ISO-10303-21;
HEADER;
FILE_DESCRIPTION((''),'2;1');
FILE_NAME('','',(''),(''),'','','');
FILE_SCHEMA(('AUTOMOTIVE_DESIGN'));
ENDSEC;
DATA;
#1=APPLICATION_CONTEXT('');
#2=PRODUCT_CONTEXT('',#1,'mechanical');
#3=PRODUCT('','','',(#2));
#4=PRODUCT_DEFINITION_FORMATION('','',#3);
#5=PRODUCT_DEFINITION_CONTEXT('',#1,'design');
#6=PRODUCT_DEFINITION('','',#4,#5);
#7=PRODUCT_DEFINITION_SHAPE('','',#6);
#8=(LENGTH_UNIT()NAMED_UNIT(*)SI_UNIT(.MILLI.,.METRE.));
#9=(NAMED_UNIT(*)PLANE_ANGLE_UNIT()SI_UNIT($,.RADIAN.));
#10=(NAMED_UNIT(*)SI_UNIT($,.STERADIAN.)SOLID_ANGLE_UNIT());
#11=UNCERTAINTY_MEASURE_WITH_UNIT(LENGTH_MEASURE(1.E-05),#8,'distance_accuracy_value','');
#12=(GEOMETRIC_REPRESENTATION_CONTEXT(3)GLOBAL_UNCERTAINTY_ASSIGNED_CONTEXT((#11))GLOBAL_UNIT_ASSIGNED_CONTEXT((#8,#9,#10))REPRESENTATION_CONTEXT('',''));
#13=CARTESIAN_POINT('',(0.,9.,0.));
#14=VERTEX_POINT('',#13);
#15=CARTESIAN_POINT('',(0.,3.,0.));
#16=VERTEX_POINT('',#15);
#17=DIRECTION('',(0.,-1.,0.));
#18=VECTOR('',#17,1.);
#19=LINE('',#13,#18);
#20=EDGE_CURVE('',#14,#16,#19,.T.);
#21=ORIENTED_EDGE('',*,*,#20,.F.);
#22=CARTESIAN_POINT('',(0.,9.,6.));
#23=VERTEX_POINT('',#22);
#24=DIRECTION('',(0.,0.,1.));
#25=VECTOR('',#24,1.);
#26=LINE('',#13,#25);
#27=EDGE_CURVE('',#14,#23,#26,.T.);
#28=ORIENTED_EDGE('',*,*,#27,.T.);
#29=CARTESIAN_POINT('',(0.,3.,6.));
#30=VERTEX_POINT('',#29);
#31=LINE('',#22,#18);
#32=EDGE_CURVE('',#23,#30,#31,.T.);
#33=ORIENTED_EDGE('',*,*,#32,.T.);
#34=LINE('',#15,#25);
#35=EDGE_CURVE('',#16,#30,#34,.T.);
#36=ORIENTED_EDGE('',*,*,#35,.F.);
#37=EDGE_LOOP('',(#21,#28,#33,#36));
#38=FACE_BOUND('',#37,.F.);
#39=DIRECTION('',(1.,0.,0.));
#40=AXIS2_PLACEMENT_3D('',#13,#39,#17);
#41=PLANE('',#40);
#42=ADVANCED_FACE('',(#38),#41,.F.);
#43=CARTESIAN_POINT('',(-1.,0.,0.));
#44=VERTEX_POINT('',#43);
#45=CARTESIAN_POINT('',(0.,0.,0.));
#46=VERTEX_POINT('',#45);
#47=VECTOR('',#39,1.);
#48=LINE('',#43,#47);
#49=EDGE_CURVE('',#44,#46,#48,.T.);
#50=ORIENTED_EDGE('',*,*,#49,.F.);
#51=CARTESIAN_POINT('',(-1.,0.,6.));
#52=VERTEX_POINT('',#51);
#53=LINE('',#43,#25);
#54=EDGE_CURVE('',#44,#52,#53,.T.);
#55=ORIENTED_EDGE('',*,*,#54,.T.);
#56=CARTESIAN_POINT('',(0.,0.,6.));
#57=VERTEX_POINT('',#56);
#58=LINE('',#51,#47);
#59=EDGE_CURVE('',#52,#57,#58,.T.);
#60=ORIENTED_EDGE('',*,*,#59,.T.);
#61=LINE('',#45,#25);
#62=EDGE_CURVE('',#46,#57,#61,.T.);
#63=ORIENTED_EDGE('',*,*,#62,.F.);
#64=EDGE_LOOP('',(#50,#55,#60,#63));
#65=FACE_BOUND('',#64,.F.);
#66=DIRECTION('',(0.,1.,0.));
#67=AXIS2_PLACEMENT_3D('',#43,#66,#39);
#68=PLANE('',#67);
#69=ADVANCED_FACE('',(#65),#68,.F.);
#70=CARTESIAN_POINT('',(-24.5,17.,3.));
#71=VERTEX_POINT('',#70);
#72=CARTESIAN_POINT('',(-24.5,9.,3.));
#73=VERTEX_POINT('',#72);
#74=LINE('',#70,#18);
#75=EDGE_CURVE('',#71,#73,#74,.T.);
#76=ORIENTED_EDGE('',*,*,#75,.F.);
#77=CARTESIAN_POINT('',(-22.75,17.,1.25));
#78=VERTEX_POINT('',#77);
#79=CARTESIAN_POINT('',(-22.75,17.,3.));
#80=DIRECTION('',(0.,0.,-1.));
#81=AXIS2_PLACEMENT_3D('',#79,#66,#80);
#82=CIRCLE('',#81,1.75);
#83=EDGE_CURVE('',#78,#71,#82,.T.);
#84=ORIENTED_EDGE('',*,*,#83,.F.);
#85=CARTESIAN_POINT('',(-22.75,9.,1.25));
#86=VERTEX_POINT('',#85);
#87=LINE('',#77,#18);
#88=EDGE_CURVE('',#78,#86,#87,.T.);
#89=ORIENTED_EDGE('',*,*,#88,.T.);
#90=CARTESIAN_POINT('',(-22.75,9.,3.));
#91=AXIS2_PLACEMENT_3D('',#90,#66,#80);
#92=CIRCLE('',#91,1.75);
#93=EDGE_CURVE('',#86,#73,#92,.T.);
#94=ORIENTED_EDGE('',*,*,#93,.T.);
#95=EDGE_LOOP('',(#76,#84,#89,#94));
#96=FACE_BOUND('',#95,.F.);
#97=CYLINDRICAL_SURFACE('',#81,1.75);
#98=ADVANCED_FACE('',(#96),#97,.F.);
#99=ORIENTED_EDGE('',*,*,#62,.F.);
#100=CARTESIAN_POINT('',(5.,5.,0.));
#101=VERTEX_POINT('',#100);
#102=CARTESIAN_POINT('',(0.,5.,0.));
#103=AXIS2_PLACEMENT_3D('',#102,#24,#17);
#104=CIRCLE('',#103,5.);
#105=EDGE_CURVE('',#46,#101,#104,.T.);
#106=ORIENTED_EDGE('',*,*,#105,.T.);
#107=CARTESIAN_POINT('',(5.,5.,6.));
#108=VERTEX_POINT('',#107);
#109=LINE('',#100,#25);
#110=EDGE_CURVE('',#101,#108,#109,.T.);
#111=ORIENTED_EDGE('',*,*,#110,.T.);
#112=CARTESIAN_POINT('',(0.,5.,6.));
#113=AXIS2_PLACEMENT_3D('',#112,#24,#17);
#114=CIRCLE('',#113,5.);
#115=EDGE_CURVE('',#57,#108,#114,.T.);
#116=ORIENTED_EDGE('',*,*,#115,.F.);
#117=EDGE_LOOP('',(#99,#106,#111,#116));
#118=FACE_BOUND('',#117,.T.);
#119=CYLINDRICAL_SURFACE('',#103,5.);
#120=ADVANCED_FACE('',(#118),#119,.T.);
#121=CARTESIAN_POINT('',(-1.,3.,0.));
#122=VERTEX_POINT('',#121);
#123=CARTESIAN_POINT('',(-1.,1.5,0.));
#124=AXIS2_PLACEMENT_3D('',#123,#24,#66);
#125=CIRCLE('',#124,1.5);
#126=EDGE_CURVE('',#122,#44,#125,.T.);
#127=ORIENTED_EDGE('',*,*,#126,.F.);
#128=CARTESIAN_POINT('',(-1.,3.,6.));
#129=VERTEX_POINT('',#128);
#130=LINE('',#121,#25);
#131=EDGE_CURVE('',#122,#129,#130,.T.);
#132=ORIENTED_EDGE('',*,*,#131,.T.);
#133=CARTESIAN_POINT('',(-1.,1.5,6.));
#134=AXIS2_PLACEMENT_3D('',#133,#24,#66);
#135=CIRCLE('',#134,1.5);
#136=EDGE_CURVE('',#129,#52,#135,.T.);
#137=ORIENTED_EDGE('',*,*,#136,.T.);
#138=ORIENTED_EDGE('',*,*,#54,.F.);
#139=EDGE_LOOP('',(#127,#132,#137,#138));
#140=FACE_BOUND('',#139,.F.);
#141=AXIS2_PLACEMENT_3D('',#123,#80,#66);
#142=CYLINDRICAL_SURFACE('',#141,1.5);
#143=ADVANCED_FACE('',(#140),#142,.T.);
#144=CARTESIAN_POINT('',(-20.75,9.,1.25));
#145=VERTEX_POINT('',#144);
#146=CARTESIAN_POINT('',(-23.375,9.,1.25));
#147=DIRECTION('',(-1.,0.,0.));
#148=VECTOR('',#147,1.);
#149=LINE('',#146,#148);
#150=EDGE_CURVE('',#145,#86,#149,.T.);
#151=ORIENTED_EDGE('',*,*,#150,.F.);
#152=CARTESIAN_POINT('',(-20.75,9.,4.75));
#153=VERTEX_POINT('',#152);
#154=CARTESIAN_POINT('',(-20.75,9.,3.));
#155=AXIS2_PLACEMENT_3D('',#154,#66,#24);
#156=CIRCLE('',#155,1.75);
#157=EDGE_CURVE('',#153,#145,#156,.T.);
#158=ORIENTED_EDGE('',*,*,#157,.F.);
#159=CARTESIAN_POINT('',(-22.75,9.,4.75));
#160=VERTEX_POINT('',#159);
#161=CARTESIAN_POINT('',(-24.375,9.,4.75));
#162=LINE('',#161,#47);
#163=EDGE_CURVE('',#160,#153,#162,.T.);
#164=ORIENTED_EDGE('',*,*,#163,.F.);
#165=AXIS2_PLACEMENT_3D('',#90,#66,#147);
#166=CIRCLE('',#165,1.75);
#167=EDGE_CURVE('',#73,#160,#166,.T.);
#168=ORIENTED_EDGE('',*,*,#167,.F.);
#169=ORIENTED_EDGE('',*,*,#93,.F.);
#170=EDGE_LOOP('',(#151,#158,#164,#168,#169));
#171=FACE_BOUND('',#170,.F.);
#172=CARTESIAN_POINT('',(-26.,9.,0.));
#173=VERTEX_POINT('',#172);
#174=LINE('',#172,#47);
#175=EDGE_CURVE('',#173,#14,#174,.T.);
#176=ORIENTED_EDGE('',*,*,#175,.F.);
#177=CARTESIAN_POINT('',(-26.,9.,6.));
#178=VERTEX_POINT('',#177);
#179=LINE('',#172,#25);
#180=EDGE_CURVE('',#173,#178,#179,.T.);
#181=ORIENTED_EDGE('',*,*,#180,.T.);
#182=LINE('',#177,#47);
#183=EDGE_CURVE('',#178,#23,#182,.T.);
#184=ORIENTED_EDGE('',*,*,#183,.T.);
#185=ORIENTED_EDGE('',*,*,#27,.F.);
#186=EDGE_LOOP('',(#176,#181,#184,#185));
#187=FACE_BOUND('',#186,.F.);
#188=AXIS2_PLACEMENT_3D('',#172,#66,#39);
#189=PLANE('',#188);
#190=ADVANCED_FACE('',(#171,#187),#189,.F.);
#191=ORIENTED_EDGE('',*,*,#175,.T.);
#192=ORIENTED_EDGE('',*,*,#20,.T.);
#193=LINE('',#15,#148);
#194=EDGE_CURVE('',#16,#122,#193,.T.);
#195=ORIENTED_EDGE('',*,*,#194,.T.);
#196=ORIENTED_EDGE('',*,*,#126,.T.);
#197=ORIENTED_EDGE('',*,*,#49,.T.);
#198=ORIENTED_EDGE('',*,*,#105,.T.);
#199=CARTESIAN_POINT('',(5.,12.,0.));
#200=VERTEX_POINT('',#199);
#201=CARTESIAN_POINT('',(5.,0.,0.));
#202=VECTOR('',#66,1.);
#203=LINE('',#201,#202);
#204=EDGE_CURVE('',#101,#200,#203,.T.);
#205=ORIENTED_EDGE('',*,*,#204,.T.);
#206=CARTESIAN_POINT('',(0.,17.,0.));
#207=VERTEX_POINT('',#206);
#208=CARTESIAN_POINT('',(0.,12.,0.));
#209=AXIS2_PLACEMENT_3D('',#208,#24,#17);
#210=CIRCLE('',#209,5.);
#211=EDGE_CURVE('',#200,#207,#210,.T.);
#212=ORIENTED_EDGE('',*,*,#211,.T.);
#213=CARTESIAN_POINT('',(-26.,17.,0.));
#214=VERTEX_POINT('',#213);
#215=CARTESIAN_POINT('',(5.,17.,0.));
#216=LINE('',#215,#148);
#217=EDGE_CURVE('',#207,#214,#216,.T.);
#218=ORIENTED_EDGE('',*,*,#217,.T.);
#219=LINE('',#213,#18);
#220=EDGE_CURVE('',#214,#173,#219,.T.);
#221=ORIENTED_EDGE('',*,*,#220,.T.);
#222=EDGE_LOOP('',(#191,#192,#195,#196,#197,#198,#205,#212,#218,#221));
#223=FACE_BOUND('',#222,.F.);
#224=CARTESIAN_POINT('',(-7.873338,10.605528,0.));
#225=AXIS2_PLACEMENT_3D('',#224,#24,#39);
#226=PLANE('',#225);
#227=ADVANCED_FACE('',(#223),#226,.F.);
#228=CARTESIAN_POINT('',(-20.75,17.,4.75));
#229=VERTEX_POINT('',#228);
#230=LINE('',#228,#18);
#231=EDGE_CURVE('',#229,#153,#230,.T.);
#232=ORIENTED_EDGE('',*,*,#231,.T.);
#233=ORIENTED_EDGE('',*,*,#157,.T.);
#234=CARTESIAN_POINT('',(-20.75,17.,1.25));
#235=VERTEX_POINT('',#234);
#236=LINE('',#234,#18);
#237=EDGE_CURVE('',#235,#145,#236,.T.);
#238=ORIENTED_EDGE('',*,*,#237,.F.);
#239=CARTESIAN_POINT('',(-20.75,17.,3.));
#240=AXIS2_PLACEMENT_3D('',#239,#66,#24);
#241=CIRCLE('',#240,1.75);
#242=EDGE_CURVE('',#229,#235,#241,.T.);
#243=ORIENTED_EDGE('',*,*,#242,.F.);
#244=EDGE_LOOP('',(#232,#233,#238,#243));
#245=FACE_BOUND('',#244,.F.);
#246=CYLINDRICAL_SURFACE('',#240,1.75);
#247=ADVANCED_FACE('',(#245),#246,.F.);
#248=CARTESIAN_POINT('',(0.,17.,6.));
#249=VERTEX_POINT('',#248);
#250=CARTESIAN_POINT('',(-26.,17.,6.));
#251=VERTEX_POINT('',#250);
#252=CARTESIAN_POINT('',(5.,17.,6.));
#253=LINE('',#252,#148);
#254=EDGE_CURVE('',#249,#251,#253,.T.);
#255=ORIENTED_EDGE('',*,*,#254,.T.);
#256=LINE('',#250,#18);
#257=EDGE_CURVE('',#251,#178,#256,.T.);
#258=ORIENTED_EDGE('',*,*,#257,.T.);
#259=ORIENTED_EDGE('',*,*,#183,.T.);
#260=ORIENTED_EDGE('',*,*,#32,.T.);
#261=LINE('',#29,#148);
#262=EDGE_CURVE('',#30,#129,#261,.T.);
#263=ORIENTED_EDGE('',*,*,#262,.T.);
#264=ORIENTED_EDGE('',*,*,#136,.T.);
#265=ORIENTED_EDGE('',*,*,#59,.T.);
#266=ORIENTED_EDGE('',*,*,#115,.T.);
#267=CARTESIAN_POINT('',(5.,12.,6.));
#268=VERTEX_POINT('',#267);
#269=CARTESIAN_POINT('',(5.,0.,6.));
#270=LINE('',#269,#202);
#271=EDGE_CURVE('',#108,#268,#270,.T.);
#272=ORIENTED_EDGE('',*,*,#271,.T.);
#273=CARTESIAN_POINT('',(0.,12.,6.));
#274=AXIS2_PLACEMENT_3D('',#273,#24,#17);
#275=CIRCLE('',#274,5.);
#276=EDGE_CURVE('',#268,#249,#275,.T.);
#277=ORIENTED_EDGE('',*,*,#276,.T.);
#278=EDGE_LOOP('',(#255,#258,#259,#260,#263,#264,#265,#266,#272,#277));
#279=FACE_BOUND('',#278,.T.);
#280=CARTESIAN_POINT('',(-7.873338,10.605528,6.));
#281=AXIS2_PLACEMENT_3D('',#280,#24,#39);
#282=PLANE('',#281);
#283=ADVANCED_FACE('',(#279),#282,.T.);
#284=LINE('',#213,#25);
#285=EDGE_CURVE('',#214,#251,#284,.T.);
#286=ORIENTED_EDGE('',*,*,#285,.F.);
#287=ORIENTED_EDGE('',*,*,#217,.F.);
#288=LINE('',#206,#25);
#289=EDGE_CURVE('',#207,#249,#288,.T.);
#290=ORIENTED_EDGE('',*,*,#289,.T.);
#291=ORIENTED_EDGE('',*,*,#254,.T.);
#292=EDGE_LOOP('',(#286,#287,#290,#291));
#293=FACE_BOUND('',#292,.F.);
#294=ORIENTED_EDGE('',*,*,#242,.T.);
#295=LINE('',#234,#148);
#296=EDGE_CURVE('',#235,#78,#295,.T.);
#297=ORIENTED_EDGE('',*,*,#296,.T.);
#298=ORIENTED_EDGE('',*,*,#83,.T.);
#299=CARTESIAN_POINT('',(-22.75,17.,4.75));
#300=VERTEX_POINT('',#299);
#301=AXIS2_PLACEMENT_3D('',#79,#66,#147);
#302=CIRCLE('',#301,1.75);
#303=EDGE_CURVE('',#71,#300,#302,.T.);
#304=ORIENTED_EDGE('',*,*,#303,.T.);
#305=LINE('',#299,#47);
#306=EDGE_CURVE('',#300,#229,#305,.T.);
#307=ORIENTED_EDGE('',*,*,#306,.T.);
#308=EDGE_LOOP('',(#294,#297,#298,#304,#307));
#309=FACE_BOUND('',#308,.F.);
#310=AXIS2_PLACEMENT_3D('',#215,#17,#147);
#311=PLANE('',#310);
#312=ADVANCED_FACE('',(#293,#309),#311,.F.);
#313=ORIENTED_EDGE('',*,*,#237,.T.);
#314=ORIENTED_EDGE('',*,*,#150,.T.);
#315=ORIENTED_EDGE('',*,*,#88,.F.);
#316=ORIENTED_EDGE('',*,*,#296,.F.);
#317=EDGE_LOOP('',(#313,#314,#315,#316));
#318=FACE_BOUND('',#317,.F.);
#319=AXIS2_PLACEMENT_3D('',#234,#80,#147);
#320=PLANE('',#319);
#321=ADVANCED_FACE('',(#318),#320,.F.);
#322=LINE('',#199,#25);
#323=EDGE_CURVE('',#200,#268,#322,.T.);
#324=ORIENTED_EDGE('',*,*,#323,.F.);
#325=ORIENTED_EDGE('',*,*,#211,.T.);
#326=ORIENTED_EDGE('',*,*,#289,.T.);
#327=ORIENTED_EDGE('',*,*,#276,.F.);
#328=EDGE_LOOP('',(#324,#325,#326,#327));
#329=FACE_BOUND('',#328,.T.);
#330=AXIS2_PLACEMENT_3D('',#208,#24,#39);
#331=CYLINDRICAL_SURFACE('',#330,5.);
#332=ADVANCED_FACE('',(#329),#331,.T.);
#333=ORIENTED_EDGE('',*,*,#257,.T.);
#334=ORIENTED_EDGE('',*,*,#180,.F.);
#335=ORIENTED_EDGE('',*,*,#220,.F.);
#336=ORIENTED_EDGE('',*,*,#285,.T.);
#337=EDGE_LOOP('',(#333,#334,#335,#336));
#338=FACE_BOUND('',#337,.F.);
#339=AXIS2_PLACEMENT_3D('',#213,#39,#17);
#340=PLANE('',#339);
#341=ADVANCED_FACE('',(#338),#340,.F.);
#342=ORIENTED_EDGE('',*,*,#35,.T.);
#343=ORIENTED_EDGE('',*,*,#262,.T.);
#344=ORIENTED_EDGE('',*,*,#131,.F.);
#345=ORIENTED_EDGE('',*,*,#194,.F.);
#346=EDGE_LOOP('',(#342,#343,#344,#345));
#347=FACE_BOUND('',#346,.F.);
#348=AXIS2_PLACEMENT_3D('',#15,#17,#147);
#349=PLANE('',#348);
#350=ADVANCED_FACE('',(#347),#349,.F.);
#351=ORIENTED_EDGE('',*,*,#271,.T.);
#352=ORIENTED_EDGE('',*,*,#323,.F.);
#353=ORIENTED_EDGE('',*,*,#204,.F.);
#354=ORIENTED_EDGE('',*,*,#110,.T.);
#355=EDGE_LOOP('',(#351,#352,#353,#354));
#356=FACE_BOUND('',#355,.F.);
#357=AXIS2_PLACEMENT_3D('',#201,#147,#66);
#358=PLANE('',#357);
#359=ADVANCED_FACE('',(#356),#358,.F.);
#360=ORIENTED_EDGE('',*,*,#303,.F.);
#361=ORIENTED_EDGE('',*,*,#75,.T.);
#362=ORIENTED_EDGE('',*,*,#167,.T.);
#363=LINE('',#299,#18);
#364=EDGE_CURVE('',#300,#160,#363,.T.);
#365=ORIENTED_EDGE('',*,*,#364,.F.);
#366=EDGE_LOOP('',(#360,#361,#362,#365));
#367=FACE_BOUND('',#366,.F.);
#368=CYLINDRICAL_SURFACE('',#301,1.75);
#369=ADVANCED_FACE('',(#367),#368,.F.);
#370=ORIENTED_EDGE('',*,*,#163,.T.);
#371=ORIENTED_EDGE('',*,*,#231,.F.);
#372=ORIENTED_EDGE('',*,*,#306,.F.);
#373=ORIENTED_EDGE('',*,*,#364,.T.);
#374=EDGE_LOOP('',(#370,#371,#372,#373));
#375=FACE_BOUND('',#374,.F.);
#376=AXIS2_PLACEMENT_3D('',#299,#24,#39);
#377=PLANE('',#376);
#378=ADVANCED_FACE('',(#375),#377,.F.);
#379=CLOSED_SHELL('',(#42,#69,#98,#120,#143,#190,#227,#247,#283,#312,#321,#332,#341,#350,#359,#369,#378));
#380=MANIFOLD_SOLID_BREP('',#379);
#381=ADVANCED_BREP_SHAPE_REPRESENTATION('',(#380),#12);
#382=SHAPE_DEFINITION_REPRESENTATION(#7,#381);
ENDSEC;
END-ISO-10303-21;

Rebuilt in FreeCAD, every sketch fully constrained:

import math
import FreeCAD as App
import Part
import Sketcher
from FreeCAD import Vector
Q = App.Units.Quantity


def edges_at(feature, points):
    """Names of the edges that pass closest to the given points."""
    edges = feature.Shape.Edges
    near = lambda p: min(range(len(edges)), key=lambda i: edges[i].distToShape(Part.Vertex(*p))[0])
    return sorted({f"Edge{near(p) + 1}" for p in points})

doc = App.newDocument("Part")
params = doc.addObject("Spreadsheet::Sheet", "Params")
for row, (alias, value) in enumerate([
    ("sketch1_radius", "1.5 mm"),
    ("sketch1_width", "6 mm"),
    ("sketch1_width2", "31 mm"),
    ("sketch1_width3", "26 mm"),
    ("sketch1_height", "17 mm"),
    ("pad1_length", "6 mm"),
    ("sketch2_width", "2 mm"),
    ("sketch2_radius", "1.75 mm"),
    ("pocket1_length", "25 mm"),
    ("fillet_radius", "5 mm"),
], start=1):
    params.set(f"A{row}", alias)
    params.set(f"B{row}", "=" + value)
    params.setAlias(f"B{row}", alias)

body = doc.addObject("PartDesign::Body", "Body")

# Sketch on XY plane
sketch1 = body.newObject("Sketcher::SketchObject", "Sketch")
sketch1.AttachmentSupport = (doc.getObject("XY_Plane"), [""])
sketch1.MapMode = "FlatFace"
sketch1.addGeometry(Part.LineSegment(Vector(-1, 0, 0), Vector(5, 0, 0)), False)
sketch1.addGeometry(Part.LineSegment(Vector(5, 0, 0), Vector(5, 17, 0)), False)
sketch1.addGeometry(Part.LineSegment(Vector(5, 17, 0), Vector(-26, 17, 0)), False)
sketch1.addGeometry(Part.LineSegment(Vector(-26, 17, 0), Vector(-26, 9, 0)), False)
sketch1.addGeometry(Part.LineSegment(Vector(-26, 9, 0), Vector(0, 9, 0)), False)
sketch1.addGeometry(Part.LineSegment(Vector(0, 9, 0), Vector(0, 3, 0)), False)
sketch1.addGeometry(Part.LineSegment(Vector(0, 3, 0), Vector(-1, 3, 0)), False)
sketch1.addGeometry(Part.ArcOfCircle(Part.Circle(Vector(-1, 1.5, 0), Vector(0, 0, 1), 1.5), math.radians(90), math.radians(270)), False)
sketch1.addConstraint(Sketcher.Constraint("Coincident", 0, 2, 1, 1))
sketch1.addConstraint(Sketcher.Constraint("Coincident", 1, 2, 2, 1))
sketch1.addConstraint(Sketcher.Constraint("Coincident", 2, 2, 3, 1))
sketch1.addConstraint(Sketcher.Constraint("Coincident", 3, 2, 4, 1))
sketch1.addConstraint(Sketcher.Constraint("Coincident", 4, 2, 5, 1))
sketch1.addConstraint(Sketcher.Constraint("Coincident", 5, 2, 6, 1))
sketch1.addConstraint(Sketcher.Constraint("Tangent", 6, 2, 7, 1))
sketch1.addConstraint(Sketcher.Constraint("Tangent", 7, 2, 0, 1))
sketch1.addConstraint(Sketcher.Constraint("Horizontal", 0))
sketch1.addConstraint(Sketcher.Constraint("Vertical", 1))
sketch1.addConstraint(Sketcher.Constraint("Horizontal", 2))
sketch1.addConstraint(Sketcher.Constraint("Vertical", 3))
sketch1.addConstraint(Sketcher.Constraint("Horizontal", 4))
sketch1.addConstraint(Sketcher.Constraint("Vertical", 5))
sketch1.addConstraint(Sketcher.Constraint("Horizontal", 6))
sketch1.addConstraint(Sketcher.Constraint("PointOnObject", 0, 2, -1))
sketch1.addConstraint(Sketcher.Constraint("PointOnObject", 4, 2, -2))
sketch1.addConstraint(Sketcher.Constraint("Equal", 0, 5))
sketch1.addConstraint(Sketcher.Constraint("Radius", 7, Q("1.5 mm")))
sketch1.addConstraint(Sketcher.Constraint("DistanceX", 0, 1, 0, 2, Q("6 mm")))
sketch1.addConstraint(Sketcher.Constraint("DistanceX", 2, 2, 2, 1, Q("31 mm")))
sketch1.addConstraint(Sketcher.Constraint("DistanceX", 4, 1, 4, 2, Q("26 mm")))
sketch1.addConstraint(Sketcher.Constraint("DistanceY", 1, 1, 1, 2, Q("17 mm")))
sketch1.setExpression("Constraints[18]", "Params.sketch1_radius")
sketch1.setExpression("Constraints[19]", "Params.sketch1_width")
sketch1.setExpression("Constraints[20]", "Params.sketch1_width2")
sketch1.setExpression("Constraints[21]", "Params.sketch1_width3")
sketch1.setExpression("Constraints[22]", "Params.sketch1_height")
pad1 = body.newObject("PartDesign::Pad", "Pad")
pad1.Profile = sketch1
pad1.setExpression("Length", "Params.pad1_length")

# Sketch on XZ plane
sketch2 = body.newObject("Sketcher::SketchObject", "Sketch001")
sketch2.AttachmentSupport = (doc.getObject("XZ_Plane"), [""])
sketch2.MapMode = "FlatFace"
sketch2.AttachmentOffset = App.Placement(Vector(0, 0, -17), App.Rotation())
sketch2.addGeometry(Part.ArcOfCircle(Part.Circle(Vector(-22.75, 3, 0), Vector(0, 0, 1), 1.75), math.radians(90), math.radians(180)), False)
sketch2.addGeometry(Part.LineSegment(Vector(-22.75, 4.75, 0), Vector(-20.75, 4.75, 0)), False)
sketch2.addGeometry(Part.ArcOfCircle(Part.Circle(Vector(-20.75, 3, 0), Vector(0, 0, 1), 1.75), math.radians(-90), math.radians(90)), False)
sketch2.addGeometry(Part.LineSegment(Vector(-20.75, 1.25, 0), Vector(-22.75, 1.25, 0)), False)
sketch2.addGeometry(Part.ArcOfCircle(Part.Circle(Vector(-22.75, 3, 0), Vector(0, 0, 1), 1.75), math.radians(180), math.radians(270)), False)
sketch2.addConstraint(Sketcher.Constraint("Tangent", 0, 1, 1, 1))
sketch2.addConstraint(Sketcher.Constraint("Tangent", 1, 2, 2, 2))
sketch2.addConstraint(Sketcher.Constraint("Tangent", 2, 1, 3, 1))
sketch2.addConstraint(Sketcher.Constraint("Tangent", 3, 2, 4, 2))
sketch2.addConstraint(Sketcher.Constraint("Tangent", 4, 1, 0, 2))
sketch2.addConstraint(Sketcher.Constraint("Horizontal", 1))
sketch2.addConstraint(Sketcher.Constraint("Horizontal", 3))
sketch2.addConstraint(Sketcher.Constraint("Equal", 0, 2))
sketch2.addConstraint(Sketcher.Constraint("Horizontal", 2, 3, 4, 1))
sketch2.addConstraint(Sketcher.Constraint("DistanceX", 1, 1, 1, 2, Q("2 mm")))
sketch2.addConstraint(Sketcher.Constraint("Radius", 0, Q("1.75 mm")))
sketch2.addConstraint(Sketcher.Constraint("DistanceY", -1, 1, 0, 3, Q("3 mm")))
sketch2.addConstraint(Sketcher.Constraint("DistanceX", 4, 1, -1, 1, Q("24.5 mm")))
sketch2.setExpression("Constraints[9]", "Params.sketch2_width")
sketch2.setExpression("Constraints[10]", "Params.sketch2_radius")
pocket1 = body.newObject("PartDesign::Pocket", "Pocket")
pocket1.Profile = sketch2
pocket1.setExpression("Length", "Params.pocket1_length")
pocket1.Reversed = True
doc.recompute()

fillet = body.newObject("PartDesign::Fillet", "Fillet")
fillet.Base = (pocket1, edges_at(pocket1, [(5, 17, 3), (5, 0, 3)]))
fillet.setExpression("Radius", "Params.fillet_radius")

doc.recompute()
